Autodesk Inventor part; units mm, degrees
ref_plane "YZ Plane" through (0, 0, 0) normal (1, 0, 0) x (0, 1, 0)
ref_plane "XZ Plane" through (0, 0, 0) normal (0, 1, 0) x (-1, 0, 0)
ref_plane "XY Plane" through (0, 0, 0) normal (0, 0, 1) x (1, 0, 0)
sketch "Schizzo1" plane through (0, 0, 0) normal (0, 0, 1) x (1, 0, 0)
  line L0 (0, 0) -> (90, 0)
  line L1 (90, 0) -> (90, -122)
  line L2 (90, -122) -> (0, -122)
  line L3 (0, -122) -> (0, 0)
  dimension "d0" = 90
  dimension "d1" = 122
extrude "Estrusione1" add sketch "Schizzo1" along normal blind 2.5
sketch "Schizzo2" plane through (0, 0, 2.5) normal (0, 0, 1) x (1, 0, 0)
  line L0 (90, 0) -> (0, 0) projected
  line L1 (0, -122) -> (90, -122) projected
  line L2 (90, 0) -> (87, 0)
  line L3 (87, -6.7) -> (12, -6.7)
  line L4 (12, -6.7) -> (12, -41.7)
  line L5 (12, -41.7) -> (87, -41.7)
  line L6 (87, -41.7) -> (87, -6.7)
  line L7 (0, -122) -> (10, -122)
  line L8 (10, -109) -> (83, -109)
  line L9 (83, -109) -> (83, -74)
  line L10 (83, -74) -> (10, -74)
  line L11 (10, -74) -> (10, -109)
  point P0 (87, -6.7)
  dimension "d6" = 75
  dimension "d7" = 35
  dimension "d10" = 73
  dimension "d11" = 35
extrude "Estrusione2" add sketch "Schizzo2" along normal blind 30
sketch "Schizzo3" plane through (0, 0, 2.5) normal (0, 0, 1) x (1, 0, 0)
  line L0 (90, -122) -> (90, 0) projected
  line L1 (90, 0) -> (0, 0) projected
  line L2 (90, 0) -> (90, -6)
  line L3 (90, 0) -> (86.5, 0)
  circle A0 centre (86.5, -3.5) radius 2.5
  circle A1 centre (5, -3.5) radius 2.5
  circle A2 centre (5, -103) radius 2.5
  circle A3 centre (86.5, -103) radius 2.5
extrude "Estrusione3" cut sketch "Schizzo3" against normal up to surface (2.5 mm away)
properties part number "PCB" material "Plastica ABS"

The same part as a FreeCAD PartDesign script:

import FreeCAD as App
import Part
import Sketcher
from FreeCAD import Vector
Q = App.Units.Quantity

doc = App.newDocument("Part")
params = doc.addObject("Spreadsheet::Sheet", "Params")
for row, (alias, value) in enumerate([
    ("sketch1_width", "90 mm"),
    ("sketch1_height", "122 mm"),
    ("pad1_length", "2.5 mm"),
    ("sketch2_width", "75 mm"),
    ("sketch2_width2", "73 mm"),
    ("sketch2_height", "35 mm"),
    ("pad2_length", "30 mm"),
    ("sketch3_diameter", "5 mm"),
    ("pocket1_length", "2.5 mm"),
], start=1):
    params.set(f"A{row}", alias)
    params.set(f"B{row}", "=" + value)
    params.setAlias(f"B{row}", alias)

body = doc.addObject("PartDesign::Body", "Body")

# Sketch on XY plane
sketch1 = body.newObject("Sketcher::SketchObject", "Sketch")
sketch1.AttachmentSupport = (doc.getObject("XY_Plane"), [""])
sketch1.MapMode = "FlatFace"
sketch1.addGeometry([
    Part.LineSegment(Vector(90, 0, 0), Vector(0, 0, 0)),
    Part.LineSegment(Vector(0, 0, 0), Vector(0, -122, 0)),
    Part.LineSegment(Vector(0, -122, 0), Vector(90, -122, 0)),
    Part.LineSegment(Vector(90, -122, 0), Vector(90, 0, 0)),
], False)
sketch1.addConstraint([
    Sketcher.Constraint("Coincident", 0, 2, 1, 1),
    Sketcher.Constraint("Coincident", 1, 2, 2, 1),
    Sketcher.Constraint("Coincident", 2, 2, 3, 1),
    Sketcher.Constraint("Coincident", 3, 2, 0, 1),
    Sketcher.Constraint("Horizontal", 0),
    Sketcher.Constraint("Vertical", 1),
    Sketcher.Constraint("Horizontal", 2),
    Sketcher.Constraint("Vertical", 3),
    Sketcher.Constraint("Coincident", 0, 2, -1, 1),
    Sketcher.Constraint("DistanceX", 0, 2, 0, 1, Q("90 mm")),
    Sketcher.Constraint("DistanceY", 1, 2, 1, 1, Q("122 mm")),
])
sketch1.setExpression("Constraints[9]", "Params.sketch1_width")
sketch1.setExpression("Constraints[10]", "Params.sketch1_height")
pad1 = body.newObject("PartDesign::Pad", "Pad")
pad1.Profile = sketch1
pad1.setExpression("Length", "Params.pad1_length")

# Sketch on XY plane
sketch2 = body.newObject("Sketcher::SketchObject", "Sketch001")
sketch2.AttachmentSupport = (doc.getObject("XY_Plane"), [""])
sketch2.MapMode = "FlatFace"
sketch2.AttachmentOffset = App.Placement(Vector(0, 0, 2.5), App.Rotation())
sketch2.addGeometry([
    Part.LineSegment(Vector(87, -41.7, 0), Vector(87, -6.7, 0)),  # 0
    Part.LineSegment(Vector(87, -6.7, 0), Vector(12, -6.7, 0)),  # 1
    Part.LineSegment(Vector(12, -6.7, 0), Vector(12, -41.7, 0)),  # 2
    Part.LineSegment(Vector(12, -41.7, 0), Vector(87, -41.7, 0)),  # 3
    Part.LineSegment(Vector(10, -74, 0), Vector(10, -109, 0)),  # 4
    Part.LineSegment(Vector(10, -109, 0), Vector(83, -109, 0)),  # 5
    Part.LineSegment(Vector(83, -109, 0), Vector(83, -74, 0)),  # 6
    Part.LineSegment(Vector(83, -74, 0), Vector(10, -74, 0)),  # 7
], False)
sketch2.addConstraint([
    Sketcher.Constraint("Coincident", 0, 2, 1, 1),
    Sketcher.Constraint("Coincident", 1, 2, 2, 1),
    Sketcher.Constraint("Coincident", 2, 2, 3, 1),
    Sketcher.Constraint("Coincident", 3, 2, 0, 1),
    Sketcher.Constraint("Coincident", 4, 2, 5, 1),
    Sketcher.Constraint("Coincident", 5, 2, 6, 1),
    Sketcher.Constraint("Coincident", 6, 2, 7, 1),
    Sketcher.Constraint("Coincident", 7, 2, 4, 1),
    Sketcher.Constraint("Vertical", 0),
    Sketcher.Constraint("Horizontal", 1),
    Sketcher.Constraint("Vertical", 2),
    Sketcher.Constraint("Horizontal", 3),
    Sketcher.Constraint("Vertical", 4),
    Sketcher.Constraint("Horizontal", 5),
    Sketcher.Constraint("Vertical", 6),
    Sketcher.Constraint("Horizontal", 7),
    Sketcher.Constraint("Equal", 2, 4),
    Sketcher.Constraint("DistanceX", 1, 2, 1, 1, Q("75 mm")),
    Sketcher.Constraint("DistanceX", 5, 1, 5, 2, Q("73 mm")),
    Sketcher.Constraint("DistanceY", 0, 1, 0, 2, Q("35 mm")),
    Sketcher.Constraint("DistanceX", -1, 1, 0, 2, Q("87 mm")),
    Sketcher.Constraint("DistanceX", -1, 1, 4, 2, Q("10 mm")),
    Sketcher.Constraint("DistanceY", 4, 2, -1, 1, Q("109 mm")),
    Sketcher.Constraint("DistanceY", 0, 2, -1, 1, Q("6.7 mm")),
])
sketch2.setExpression("Constraints[17]", "Params.sketch2_width")
sketch2.setExpression("Constraints[18]", "Params.sketch2_width2")
sketch2.setExpression("Constraints[19]", "Params.sketch2_height")
pad2 = body.newObject("PartDesign::Pad", "Pad001")
pad2.Profile = sketch2
pad2.setExpression("Length", "Params.pad2_length")

# Sketch on XY plane
sketch3 = body.newObject("Sketcher::SketchObject", "Sketch002")
sketch3.AttachmentSupport = (doc.getObject("XY_Plane"), [""])
sketch3.MapMode = "FlatFace"
sketch3.AttachmentOffset = App.Placement(Vector(0, 0, 2.5), App.Rotation())
sketch3.addGeometry([
    Part.Circle(Vector(86.5, -3.5, 0), Vector(0, 0, 1), 2.5),
    Part.Circle(Vector(5, -3.5, 0), Vector(0, 0, 1), 2.5),
    Part.Circle(Vector(5, -103, 0), Vector(0, 0, 1), 2.5),
    Part.Circle(Vector(86.5, -103, 0), Vector(0, 0, 1), 2.5),
], False)
sketch3.addConstraint([
    Sketcher.Constraint("Equal", 0, 1),
    Sketcher.Constraint("Equal", 1, 2),
    Sketcher.Constraint("Equal", 2, 3),
    Sketcher.Constraint("Horizontal", 0, 3, 1, 3),
    Sketcher.Constraint("Horizontal", 2, 3, 3, 3),
    Sketcher.Constraint("Vertical", 1, 3, 2, 3),
    Sketcher.Constraint("Vertical", 0, 3, 3, 3),
    Sketcher.Constraint("Diameter", 0, Q("5 mm")),
    Sketcher.Constraint("DistanceX", -1, 1, 1, 3, Q("5 mm")),
    Sketcher.Constraint("DistanceY", 2, 3, -1, 1, Q("103 mm")),
    Sketcher.Constraint("DistanceX", -1, 1, 0, 3, Q("86.5 mm")),
    Sketcher.Constraint("DistanceY", 0, 3, -1, 1, Q("3.5 mm")),
])
sketch3.setExpression("Constraints[7]", "Params.sketch3_diameter")
pocket1 = body.newObject("PartDesign::Pocket", "Pocket")
pocket1.Profile = sketch3
pocket1.setExpression("Length", "Params.pocket1_length")

doc.recompute()
